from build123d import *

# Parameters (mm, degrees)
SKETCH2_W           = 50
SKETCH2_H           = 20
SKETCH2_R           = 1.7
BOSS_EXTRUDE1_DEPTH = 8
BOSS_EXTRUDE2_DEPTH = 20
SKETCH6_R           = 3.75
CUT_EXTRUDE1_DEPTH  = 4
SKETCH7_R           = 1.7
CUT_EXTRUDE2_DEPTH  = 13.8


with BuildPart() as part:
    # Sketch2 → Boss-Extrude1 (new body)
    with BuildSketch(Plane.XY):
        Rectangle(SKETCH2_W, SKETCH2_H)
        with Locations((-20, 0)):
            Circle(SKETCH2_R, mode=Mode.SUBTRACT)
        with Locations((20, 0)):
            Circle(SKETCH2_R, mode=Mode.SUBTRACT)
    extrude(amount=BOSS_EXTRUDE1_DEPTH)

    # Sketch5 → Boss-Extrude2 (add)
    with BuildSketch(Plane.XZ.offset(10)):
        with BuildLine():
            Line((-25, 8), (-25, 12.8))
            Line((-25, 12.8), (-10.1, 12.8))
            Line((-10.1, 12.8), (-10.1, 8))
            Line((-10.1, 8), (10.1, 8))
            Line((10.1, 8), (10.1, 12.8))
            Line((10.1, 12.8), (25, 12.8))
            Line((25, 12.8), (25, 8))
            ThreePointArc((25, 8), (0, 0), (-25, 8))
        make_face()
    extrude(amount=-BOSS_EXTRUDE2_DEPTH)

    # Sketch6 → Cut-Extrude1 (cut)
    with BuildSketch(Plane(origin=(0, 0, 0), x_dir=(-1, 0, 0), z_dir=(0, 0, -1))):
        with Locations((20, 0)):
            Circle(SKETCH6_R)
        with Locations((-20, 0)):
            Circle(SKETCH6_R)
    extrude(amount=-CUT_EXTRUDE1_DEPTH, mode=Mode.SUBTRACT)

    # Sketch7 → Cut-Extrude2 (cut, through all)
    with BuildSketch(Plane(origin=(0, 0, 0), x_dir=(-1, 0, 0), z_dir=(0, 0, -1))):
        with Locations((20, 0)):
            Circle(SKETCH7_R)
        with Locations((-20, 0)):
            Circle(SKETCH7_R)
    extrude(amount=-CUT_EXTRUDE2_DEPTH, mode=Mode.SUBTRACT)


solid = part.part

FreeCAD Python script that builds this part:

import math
import FreeCAD as App
import Part
import Sketcher

V = App.Vector
Q = App.Units.Quantity


def add_polygon(sketch, points):
    """Adds a closed chain of lines whose ends are joined by coincident constraints."""
    first, n = sketch.GeometryCount, len(points)
    for a, b in zip(points, points[1:] + points[:1]):
        sketch.addGeometry(Part.LineSegment(App.Vector(*a, 0), App.Vector(*b, 0)), False)
    for i in range(n):
        sketch.addConstraint(Sketcher.Constraint("Coincident", first + i, 2, first + (i + 1) % n, 1))

doc = App.newDocument("Part")
params = doc.addObject("Spreadsheet::Sheet", "Params")
for row, (alias, value) in enumerate([
    ("sketch1_diameter", "3.4 mm"),
    ("sketch1_width", "50 mm"),
    ("sketch1_height", "20 mm"),
    ("pad1_length", "8 mm"),
    ("sketch2_width", "14.9 mm"),
    ("sketch2_width2", "20.2 mm"),
    ("sketch2_height", "4.8 mm"),
    ("pad2_length", "20 mm"),
    ("sketch3_diameter", "7.5 mm"),
    ("pocket1_length", "4 mm"),
    ("sketch4_diameter", "3.4 mm"),
], start=1):
    params.set(f"A{row}", alias)
    params.set(f"B{row}", "=" + value)
    params.setAlias(f"B{row}", alias)

body = doc.addObject("PartDesign::Body", "Body")

sketch1 = body.newObject("Sketcher::SketchObject", "Sketch")
sketch1.AttachmentSupport = (doc.getObject("XY_Plane"), [""])
sketch1.MapMode = "FlatFace"
add_polygon(sketch1, [(-25, 10), (-25, -10), (25, -10), (25, 10)])
sketch1.addGeometry(Part.Circle(V(-20, 0, 0), V(0, 0, 1), 1.7), False)
sketch1.addGeometry(Part.Circle(V(20, 0, 0), V(0, 0, 1), 1.7), False)
sketch1.addConstraint([
    Sketcher.Constraint("Vertical", 0),
    Sketcher.Constraint("Horizontal", 1),
    Sketcher.Constraint("Vertical", 2),
    Sketcher.Constraint("Horizontal", 3),
    Sketcher.Constraint("Equal", 4, 5),
    Sketcher.Constraint("Symmetric", 4, 3, 5, 3, -1, 1),
    Sketcher.Constraint("Symmetric", 0, 2, 2, 2, -1, 1),
    Sketcher.Constraint("PointOnObject", 4, 3, -1),
    Sketcher.Constraint("Diameter", 4, Q("3.4 mm")),
    Sketcher.Constraint("DistanceX", 1, 1, 1, 2, Q("50 mm")),
    Sketcher.Constraint("DistanceY", 0, 2, 0, 1, Q("20 mm")),
    Sketcher.Constraint("DistanceX", 4, 3, -1, 1, Q("20 mm")),
])
sketch1.setExpression("Constraints[12]", "Params.sketch1_diameter")
sketch1.setExpression("Constraints[13]", "Params.sketch1_width")
sketch1.setExpression("Constraints[14]", "Params.sketch1_height")
pad1 = body.newObject("PartDesign::Pad", "Pad")
pad1.Profile = sketch1
pad1.setExpression("Length", "Params.pad1_length")

sketch2 = body.newObject("Sketcher::SketchObject", "Sketch001")
sketch2.AttachmentSupport = (doc.getObject("XZ_Plane"), [""])
sketch2.MapMode = "FlatFace"
sketch2.AttachmentOffset = App.Placement(V(0, 0, 10), App.Rotation())
sketch2.addGeometry([
    Part.LineSegment(V(-25, 12.8, 0), V(-25, 8, 0)),
    Part.ArcOfCircle(Part.Circle(V(0, 43.1, 0), V(0, 0, 1), 43.1), math.radians(-125), math.radians(-55)),
    Part.LineSegment(V(25, 8, 0), V(25, 12.8, 0)),
    Part.LineSegment(V(25, 12.8, 0), V(10.1, 12.8, 0)),
    Part.LineSegment(V(10.1, 12.8, 0), V(10.1, 8, 0)),
    Part.LineSegment(V(10.1, 8, 0), V(-10.1, 8, 0)),
    Part.LineSegment(V(-10.1, 8, 0), V(-10.1, 12.8, 0)),
    Part.LineSegment(V(-10.1, 12.8, 0), V(-25, 12.8, 0)),
], False)
sketch2.addConstraint([
    Sketcher.Constraint("Coincident", 0, 2, 1, 1),
    Sketcher.Constraint("Coincident", 1, 2, 2, 1),
    Sketcher.Constraint("Coincident", 2, 2, 3, 1),
    Sketcher.Constraint("Coincident", 3, 2, 4, 1),
    Sketcher.Constraint("Coincident", 4, 2, 5, 1),
    Sketcher.Constraint("Coincident", 5, 2, 6, 1),
    Sketcher.Constraint("Coincident", 6, 2, 7, 1),
    Sketcher.Constraint("Coincident", 7, 2, 0, 1),
    Sketcher.Constraint("Vertical", 0),
    Sketcher.Constraint("Vertical", 2),
    Sketcher.Constraint("Horizontal", 3),
    Sketcher.Constraint("Vertical", 4),
    Sketcher.Constraint("Horizontal", 5),
    Sketcher.Constraint("Vertical", 6),
    Sketcher.Constraint("Horizontal", 7),
    Sketcher.Constraint("Symmetric", 0, 2, 1, 2, -2),
    Sketcher.Constraint("Symmetric", 3, 2, 6, 2, -2),
    Sketcher.Constraint("Horizontal", 1, 2, 4, 2),
    Sketcher.Constraint("DistanceX", 3, 2, 3, 1, Q("14.9 mm")),
    Sketcher.Constraint("DistanceX", 5, 2, 5, 1, Q("20.2 mm")),
    Sketcher.Constraint("DistanceY", 0, 2, 0, 1, Q("4.8 mm")),
    Sketcher.Constraint("DistanceY", -1, 1, 0, 2, Q("8 mm")),
    Sketcher.Constraint("Radius", 1, Q("43.0625 mm")),
])
sketch2.setExpression("Constraints[18]", "Params.sketch2_width")
sketch2.setExpression("Constraints[19]", "Params.sketch2_width2")
sketch2.setExpression("Constraints[20]", "Params.sketch2_height")
pad2 = body.newObject("PartDesign::Pad", "Pad001")
pad2.Profile = sketch2
pad2.setExpression("Length", "Params.pad2_length")
pad2.Reversed = True

sketch3 = body.newObject("Sketcher::SketchObject", "Sketch002")
sketch3.AttachmentSupport = (doc.getObject("XY_Plane"), [""])
sketch3.MapMode = "FlatFace"
sketch3.addGeometry([
    Part.Circle(V(-20, 0, 0), V(0, 0, 1), 3.8),
    Part.Circle(V(20, 0, 0), V(0, 0, 1), 3.8),
], False)
sketch3.addConstraint([
    Sketcher.Constraint("Equal", 0, 1),
    Sketcher.Constraint("Symmetric", 0, 3, 1, 3, -1, 1),
    Sketcher.Constraint("PointOnObject", 0, 3, -1),
    Sketcher.Constraint("Diameter", 0, Q("7.5 mm")),
    Sketcher.Constraint("DistanceX", 0, 3, -1, 1, Q("20 mm")),
])
sketch3.setExpression("Constraints[3]", "Params.sketch3_diameter")
pocket1 = body.newObject("PartDesign::Pocket", "Pocket")
pocket1.Profile = sketch3
pocket1.setExpression("Length", "Params.pocket1_length")
pocket1.Reversed = True

sketch4 = body.newObject("Sketcher::SketchObject", "Sketch003")
sketch4.AttachmentSupport = (doc.getObject("XY_Plane"), [""])
sketch4.MapMode = "FlatFace"
sketch4.addGeometry([
    Part.Circle(V(-20, 0, 0), V(0, 0, 1), 1.7),
    Part.Circle(V(20, 0, 0), V(0, 0, 1), 1.7),
], False)
sketch4.addConstraint([
    Sketcher.Constraint("Equal", 0, 1),
    Sketcher.Constraint("Symmetric", 0, 3, 1, 3, -1, 1),
    Sketcher.Constraint("PointOnObject", 0, 3, -1),
    Sketcher.Constraint("Diameter", 0, Q("3.4 mm")),
    Sketcher.Constraint("DistanceX", 0, 3, -1, 1, Q("20 mm")),
])
sketch4.setExpression("Constraints[3]", "Params.sketch4_diameter")
pocket2 = body.newObject("PartDesign::Pocket", "Pocket001")
pocket2.Profile = sketch4
pocket2.Type = "ThroughAll"
pocket2.Reversed = True

doc.recompute()
